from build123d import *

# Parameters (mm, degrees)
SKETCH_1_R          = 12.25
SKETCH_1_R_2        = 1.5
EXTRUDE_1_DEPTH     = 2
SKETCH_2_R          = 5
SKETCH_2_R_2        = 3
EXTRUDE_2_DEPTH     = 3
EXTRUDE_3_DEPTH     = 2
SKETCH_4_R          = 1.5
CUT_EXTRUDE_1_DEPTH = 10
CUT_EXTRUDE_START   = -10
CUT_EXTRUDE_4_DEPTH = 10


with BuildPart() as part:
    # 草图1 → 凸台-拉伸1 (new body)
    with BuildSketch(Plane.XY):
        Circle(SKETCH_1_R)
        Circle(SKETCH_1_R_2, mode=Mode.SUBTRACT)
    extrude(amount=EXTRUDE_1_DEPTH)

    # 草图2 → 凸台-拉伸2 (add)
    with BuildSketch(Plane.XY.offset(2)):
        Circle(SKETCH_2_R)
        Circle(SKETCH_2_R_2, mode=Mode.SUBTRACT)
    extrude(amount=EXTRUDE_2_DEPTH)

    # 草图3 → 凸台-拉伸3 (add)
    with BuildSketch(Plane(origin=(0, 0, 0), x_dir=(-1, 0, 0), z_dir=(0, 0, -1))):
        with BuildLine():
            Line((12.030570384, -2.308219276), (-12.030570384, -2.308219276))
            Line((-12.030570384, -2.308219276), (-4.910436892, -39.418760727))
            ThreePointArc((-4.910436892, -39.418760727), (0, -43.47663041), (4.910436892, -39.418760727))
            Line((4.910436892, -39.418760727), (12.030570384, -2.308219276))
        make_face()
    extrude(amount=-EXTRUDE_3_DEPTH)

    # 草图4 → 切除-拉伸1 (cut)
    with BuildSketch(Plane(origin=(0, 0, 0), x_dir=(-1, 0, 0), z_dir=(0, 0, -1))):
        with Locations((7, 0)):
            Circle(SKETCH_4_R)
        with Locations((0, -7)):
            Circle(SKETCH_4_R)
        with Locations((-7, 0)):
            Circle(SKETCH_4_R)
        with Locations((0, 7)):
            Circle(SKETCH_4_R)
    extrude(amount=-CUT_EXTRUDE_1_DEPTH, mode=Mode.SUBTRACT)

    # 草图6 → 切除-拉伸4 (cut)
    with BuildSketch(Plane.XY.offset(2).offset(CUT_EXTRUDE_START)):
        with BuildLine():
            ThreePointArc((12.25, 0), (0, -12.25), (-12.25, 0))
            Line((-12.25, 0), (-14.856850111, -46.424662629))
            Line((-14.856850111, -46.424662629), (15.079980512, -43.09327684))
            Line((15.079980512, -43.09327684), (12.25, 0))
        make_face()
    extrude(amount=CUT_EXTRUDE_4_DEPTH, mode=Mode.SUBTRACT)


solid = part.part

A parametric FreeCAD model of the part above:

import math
import FreeCAD as App
import Part
import Sketcher

doc = App.newDocument("Part")
body = doc.addObject("PartDesign::Body", "Body")

# Sketch on XY plane
sketch1 = doc.addObject("Sketcher::SketchObject", "Sketch")
body.addObject(sketch1)
sketch1.AttachmentSupport = (doc.XY_Plane, [""])
sketch1.MapMode = "FlatFace"
sketch1.addGeometry([
    Part.Circle(App.Vector(0, 0, 0), App.Vector(0, 0, 1), 12.25),
    Part.Circle(App.Vector(0, 0, 0), App.Vector(0, 0, 1), 1.5),
], False)
sketch1.addConstraint([
    Sketcher.Constraint("Coincident", 0, 3, -1, 1),
    Sketcher.Constraint("Coincident", 1, 3, -1, 1),
    Sketcher.Constraint("Diameter", 1, 3.0),
    Sketcher.Constraint("Diameter", 0, 24.5),
])
pad1 = doc.addObject("PartDesign::Pad", "Pad")
body.addObject(pad1)
pad1.Profile = sketch1
pad1.Length = 2

# Sketch on XY plane
sketch2 = doc.addObject("Sketcher::SketchObject", "Sketch001")
body.addObject(sketch2)
sketch2.AttachmentSupport = (doc.XY_Plane, [""])
sketch2.MapMode = "FlatFace"
sketch2.AttachmentOffset = App.Placement(App.Vector(0, 0, 2), App.Rotation())
sketch2.addGeometry([
    Part.Circle(App.Vector(0, 0, 0), App.Vector(0, 0, 1), 5),
    Part.Circle(App.Vector(0, 0, 0), App.Vector(0, 0, 1), 3),
], False)
sketch2.addConstraint([
    Sketcher.Constraint("Coincident", 0, 3, -1, 1),
    Sketcher.Constraint("Coincident", 1, 3, -1, 1),
    Sketcher.Constraint("Diameter", 0, 10.0),
    Sketcher.Constraint("Diameter", 1, 6.0),
])
pad2 = doc.addObject("PartDesign::Pad", "Pad001")
body.addObject(pad2)
pad2.Profile = sketch2
pad2.Length = 3

# Sketch on XY plane
sketch3 = doc.addObject("Sketcher::SketchObject", "Sketch002")
body.addObject(sketch3)
sketch3.AttachmentSupport = (doc.XY_Plane, [""])
sketch3.MapMode = "FlatFace"
sketch3.addGeometry([
    Part.LineSegment(App.Vector(-12.03057, -2.308219, 0), App.Vector(12.03057, -2.308219, 0)),
    Part.LineSegment(App.Vector(12.03057, -2.308219, 0), App.Vector(4.910437, -39.418761, 0)),
    Part.ArcOfCircle(Part.Circle(App.Vector(0, -38.47663, 0), App.Vector(0, 0, 1), 5), math.radians(-169.139055), math.radians(-10.860945)),
    Part.LineSegment(App.Vector(-4.910437, -39.418761, 0), App.Vector(-12.03057, -2.308219, 0)),
], False)
sketch3.addConstraint([
    Sketcher.Constraint("Coincident", 0, 2, 1, 1),
    Sketcher.Constraint("Tangent", 1, 2, 2, 2),
    Sketcher.Constraint("Tangent", 2, 1, 3, 1),
    Sketcher.Constraint("Coincident", 3, 2, 0, 1),
    Sketcher.Constraint("Horizontal", 0),
    Sketcher.Constraint("Symmetric", 1, 2, 2, 1, -2),
    Sketcher.Constraint("Radius", 2, 5.0),
    Sketcher.Constraint("DistanceX", 0, 1, 0, 2, 24.061141),
    Sketcher.Constraint("DistanceY", 2, 3, -1, 1, 38.47663),
    Sketcher.Constraint("DistanceY", 0, 2, -1, 1, 2.308219),
])
pad3 = doc.addObject("PartDesign::Pad", "Pad002")
body.addObject(pad3)
pad3.Profile = sketch3
pad3.Length = 2

# Sketch on XY plane
sketch4 = doc.addObject("Sketcher::SketchObject", "Sketch003")
body.addObject(sketch4)
sketch4.AttachmentSupport = (doc.XY_Plane, [""])
sketch4.MapMode = "FlatFace"
sketch4.addGeometry([
    Part.Circle(App.Vector(-7, 0, 0), App.Vector(0, 0, 1), 1.5),
    Part.Circle(App.Vector(0, -7, 0), App.Vector(0, 0, 1), 1.5),
    Part.Circle(App.Vector(7, 0, 0), App.Vector(0, 0, 1), 1.5),
    Part.Circle(App.Vector(0, 7, 0), App.Vector(0, 0, 1), 1.5),
], False)
sketch4.addConstraint([
    Sketcher.Constraint("Equal", 0, 1),
    Sketcher.Constraint("Equal", 1, 2),
    Sketcher.Constraint("Equal", 2, 3),
    Sketcher.Constraint("Symmetric", 0, 3, 2, 3, -1, 1),
    Sketcher.Constraint("Symmetric", 1, 3, 3, 3, -1, 1),
    Sketcher.Constraint("PointOnObject", 0, 3, -1),
    Sketcher.Constraint("PointOnObject", 1, 3, -2),
    Sketcher.Constraint("Diameter", 0, 3.0),
    Sketcher.Constraint("DistanceX", 0, 3, -1, 1, 7.0),
    Sketcher.Constraint("DistanceY", 1, 3, -1, 1, 7.0),
])
pocket1 = doc.addObject("PartDesign::Pocket", "Pocket")
body.addObject(pocket1)
pocket1.Profile = sketch4
pocket1.Length = 10
pocket1.Reversed = True

# Sketch on XY plane
sketch5 = doc.addObject("Sketcher::SketchObject", "Sketch004")
body.addObject(sketch5)
sketch5.AttachmentSupport = (doc.XY_Plane, [""])
sketch5.MapMode = "FlatFace"
sketch5.AttachmentOffset = App.Placement(App.Vector(0, 0, -8), App.Rotation())
sketch5.addGeometry([
    Part.ArcOfCircle(Part.Circle(App.Vector(0, 0, 0), App.Vector(0, 0, 1), 12.25), math.radians(180), math.radians(360)),
    Part.LineSegment(App.Vector(-12.25, 0, 0), App.Vector(-14.85685, -46.424663, 0)),
    Part.LineSegment(App.Vector(-14.85685, -46.424663, 0), App.Vector(15.079981, -43.093277, 0)),
    Part.LineSegment(App.Vector(15.079981, -43.093277, 0), App.Vector(12.25, 0, 0)),
], False)
sketch5.addConstraint([
    Sketcher.Constraint("Coincident", 0, 1, 1, 1),
    Sketcher.Constraint("Coincident", 1, 2, 2, 1),
    Sketcher.Constraint("Coincident", 2, 2, 3, 1),
    Sketcher.Constraint("Coincident", 3, 2, 0, 2),
    Sketcher.Constraint("Coincident", 0, 3, -1, 1),
    Sketcher.Constraint("PointOnObject", 0, 1, -1),
    Sketcher.Constraint("PointOnObject", 3, 2, -1),
    Sketcher.Constraint("Radius", 0, 12.25),
    Sketcher.Constraint("Distance", 3, 43.186101),
    Sketcher.Constraint("Distance", 2, 30.121619),
    Sketcher.Constraint("DistanceX", 1, 2, -1, 1, 14.85685),
    Sketcher.Constraint("DistanceX", -1, 1, 2, 2, 15.079981),
])
pocket2 = doc.addObject("PartDesign::Pocket", "Pocket001")
body.addObject(pocket2)
pocket2.Profile = sketch5
pocket2.Length = 10
pocket2.Reversed = True

doc.recompute()
